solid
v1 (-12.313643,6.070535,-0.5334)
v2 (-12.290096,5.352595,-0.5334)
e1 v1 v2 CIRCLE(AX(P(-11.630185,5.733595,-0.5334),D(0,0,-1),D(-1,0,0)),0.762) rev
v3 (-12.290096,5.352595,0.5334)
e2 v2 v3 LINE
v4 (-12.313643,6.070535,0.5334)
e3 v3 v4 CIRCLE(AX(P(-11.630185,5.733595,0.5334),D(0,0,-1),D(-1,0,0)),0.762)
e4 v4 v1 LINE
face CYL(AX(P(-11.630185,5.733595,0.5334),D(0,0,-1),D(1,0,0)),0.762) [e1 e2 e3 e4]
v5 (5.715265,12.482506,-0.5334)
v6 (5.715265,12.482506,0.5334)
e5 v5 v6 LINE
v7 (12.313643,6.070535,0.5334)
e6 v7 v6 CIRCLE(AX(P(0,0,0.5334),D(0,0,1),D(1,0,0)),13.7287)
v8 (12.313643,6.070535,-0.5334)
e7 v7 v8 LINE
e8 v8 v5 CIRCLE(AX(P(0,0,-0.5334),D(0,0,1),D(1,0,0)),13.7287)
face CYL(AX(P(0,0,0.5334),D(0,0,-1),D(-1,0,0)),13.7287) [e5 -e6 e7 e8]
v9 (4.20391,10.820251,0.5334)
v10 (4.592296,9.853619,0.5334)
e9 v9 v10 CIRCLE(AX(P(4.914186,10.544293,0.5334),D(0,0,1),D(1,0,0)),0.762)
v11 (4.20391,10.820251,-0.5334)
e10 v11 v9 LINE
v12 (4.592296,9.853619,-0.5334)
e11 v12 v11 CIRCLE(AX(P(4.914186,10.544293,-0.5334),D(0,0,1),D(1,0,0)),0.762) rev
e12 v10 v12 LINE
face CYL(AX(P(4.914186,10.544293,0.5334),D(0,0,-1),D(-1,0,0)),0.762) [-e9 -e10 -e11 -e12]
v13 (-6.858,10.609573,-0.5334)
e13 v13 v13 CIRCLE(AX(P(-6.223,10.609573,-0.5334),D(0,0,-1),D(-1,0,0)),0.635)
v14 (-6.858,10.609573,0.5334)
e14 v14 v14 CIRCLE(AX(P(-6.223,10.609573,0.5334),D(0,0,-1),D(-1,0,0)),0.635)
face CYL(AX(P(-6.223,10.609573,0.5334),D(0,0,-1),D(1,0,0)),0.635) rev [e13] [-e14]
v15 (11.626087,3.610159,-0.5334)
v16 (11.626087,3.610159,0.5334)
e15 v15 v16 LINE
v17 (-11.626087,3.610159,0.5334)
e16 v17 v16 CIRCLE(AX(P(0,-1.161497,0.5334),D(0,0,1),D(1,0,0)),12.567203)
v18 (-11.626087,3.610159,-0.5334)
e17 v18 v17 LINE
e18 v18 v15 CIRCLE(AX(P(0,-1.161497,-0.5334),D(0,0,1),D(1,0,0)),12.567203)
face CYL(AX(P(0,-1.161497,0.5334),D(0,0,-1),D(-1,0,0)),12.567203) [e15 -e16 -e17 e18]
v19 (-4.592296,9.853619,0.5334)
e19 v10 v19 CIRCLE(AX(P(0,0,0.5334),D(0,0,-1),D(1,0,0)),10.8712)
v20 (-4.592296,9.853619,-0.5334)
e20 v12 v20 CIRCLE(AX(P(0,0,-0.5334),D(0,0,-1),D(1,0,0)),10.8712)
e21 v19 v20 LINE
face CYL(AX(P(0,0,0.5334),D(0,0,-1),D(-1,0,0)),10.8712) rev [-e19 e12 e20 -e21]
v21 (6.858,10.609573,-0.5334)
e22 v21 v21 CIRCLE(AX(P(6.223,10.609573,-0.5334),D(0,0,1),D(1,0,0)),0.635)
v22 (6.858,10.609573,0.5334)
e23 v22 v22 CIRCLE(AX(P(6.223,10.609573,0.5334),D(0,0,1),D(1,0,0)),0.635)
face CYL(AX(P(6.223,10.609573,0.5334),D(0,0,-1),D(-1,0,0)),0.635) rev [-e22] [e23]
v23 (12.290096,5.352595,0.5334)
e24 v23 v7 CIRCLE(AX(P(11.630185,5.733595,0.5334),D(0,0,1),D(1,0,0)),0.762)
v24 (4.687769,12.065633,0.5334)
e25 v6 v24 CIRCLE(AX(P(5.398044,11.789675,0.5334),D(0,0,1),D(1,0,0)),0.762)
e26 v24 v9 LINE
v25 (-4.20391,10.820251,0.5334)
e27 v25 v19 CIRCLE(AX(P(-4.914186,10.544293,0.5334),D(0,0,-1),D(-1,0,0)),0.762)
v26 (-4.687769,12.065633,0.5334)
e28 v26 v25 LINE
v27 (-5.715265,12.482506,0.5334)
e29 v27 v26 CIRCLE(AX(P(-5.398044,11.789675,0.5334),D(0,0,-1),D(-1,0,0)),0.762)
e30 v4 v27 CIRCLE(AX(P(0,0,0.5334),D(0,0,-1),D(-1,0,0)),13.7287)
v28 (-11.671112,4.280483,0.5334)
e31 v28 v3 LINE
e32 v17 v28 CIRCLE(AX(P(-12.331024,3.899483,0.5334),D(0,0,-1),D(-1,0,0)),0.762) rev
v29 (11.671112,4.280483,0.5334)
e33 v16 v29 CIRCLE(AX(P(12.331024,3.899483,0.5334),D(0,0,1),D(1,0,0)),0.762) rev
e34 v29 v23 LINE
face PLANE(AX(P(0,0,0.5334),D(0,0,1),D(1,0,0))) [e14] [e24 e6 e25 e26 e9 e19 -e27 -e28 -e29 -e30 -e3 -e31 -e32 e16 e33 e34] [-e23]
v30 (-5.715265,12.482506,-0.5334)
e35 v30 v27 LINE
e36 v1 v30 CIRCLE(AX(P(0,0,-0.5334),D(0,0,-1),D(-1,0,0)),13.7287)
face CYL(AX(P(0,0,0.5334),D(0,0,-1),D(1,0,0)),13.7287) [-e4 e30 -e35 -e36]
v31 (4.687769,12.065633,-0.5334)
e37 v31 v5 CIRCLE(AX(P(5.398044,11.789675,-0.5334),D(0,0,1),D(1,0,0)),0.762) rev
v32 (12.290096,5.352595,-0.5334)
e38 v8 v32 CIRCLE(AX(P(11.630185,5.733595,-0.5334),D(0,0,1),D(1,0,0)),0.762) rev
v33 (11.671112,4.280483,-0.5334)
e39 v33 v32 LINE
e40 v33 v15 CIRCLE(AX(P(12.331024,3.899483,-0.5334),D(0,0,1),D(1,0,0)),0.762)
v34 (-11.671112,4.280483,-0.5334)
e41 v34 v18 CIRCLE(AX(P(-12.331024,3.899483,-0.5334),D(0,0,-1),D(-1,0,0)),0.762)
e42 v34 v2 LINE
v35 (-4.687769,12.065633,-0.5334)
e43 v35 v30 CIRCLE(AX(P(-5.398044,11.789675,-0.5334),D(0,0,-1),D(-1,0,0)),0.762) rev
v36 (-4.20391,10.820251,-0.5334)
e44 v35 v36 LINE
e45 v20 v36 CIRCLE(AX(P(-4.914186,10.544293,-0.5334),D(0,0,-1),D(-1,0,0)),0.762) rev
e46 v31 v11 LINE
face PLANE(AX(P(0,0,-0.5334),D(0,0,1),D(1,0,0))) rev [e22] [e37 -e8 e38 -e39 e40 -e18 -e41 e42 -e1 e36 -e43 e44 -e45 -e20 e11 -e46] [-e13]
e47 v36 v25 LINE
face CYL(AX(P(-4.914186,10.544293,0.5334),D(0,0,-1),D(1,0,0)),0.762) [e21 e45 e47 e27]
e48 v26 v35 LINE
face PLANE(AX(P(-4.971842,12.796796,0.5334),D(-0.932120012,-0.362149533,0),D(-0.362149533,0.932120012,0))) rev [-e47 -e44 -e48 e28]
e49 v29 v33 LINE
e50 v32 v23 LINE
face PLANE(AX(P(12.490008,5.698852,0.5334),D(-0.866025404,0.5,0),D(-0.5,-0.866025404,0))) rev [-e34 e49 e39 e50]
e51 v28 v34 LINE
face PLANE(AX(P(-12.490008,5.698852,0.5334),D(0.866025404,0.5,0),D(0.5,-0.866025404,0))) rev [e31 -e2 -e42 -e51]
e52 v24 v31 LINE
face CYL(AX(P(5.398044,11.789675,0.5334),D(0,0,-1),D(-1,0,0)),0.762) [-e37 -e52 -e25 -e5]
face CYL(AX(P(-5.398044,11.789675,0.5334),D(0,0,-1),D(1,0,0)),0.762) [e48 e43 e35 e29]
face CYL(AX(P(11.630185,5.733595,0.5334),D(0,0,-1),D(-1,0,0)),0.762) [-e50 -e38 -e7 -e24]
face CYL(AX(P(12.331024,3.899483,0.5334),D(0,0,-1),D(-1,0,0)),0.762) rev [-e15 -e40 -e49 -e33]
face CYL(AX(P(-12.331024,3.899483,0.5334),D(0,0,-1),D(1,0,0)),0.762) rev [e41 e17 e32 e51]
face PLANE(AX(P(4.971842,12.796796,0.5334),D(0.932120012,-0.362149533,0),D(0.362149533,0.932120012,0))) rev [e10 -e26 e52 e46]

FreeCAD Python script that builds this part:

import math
import FreeCAD as App
import Part
import Sketcher

V = App.Vector
Q = App.Units.Quantity


def edges_at(feature, points):
    """Names of the edges that pass closest to the given points."""
    edges = feature.Shape.Edges
    near = lambda p: min(range(len(edges)), key=lambda i: edges[i].distToShape(Part.Vertex(*p))[0])
    return sorted({f"Edge{near(p) + 1}" for p in points})

doc = App.newDocument("Part")
body = doc.addObject("PartDesign::Body", "Body")

sketch1 = body.newObject("Sketcher::SketchObject", "Sketch")
sketch1.AttachmentSupport = (doc.getObject("XY_Plane"), [""])
sketch1.MapMode = "FlatFace"
sketch1.addGeometry(Part.LineSegment(V(0, -10.8712, 0), V(0, -13.7287, 0)), False)
sketch1.addGeometry(Part.ArcOfCircle(Part.Circle(V(0, -1.161497, 0), V(0, 0, 1), 12.567203), math.radians(-90), math.radians(24.001844)), False)
sketch1.addGeometry(Part.LineSegment(V(11.480547, 3.950415, 0), V(12.490008, 5.698852, 0)), False)
sketch1.addGeometry(Part.ArcOfCircle(Part.Circle(V(0, 0, 0), V(0, 0, 1), 13.7287), math.radians(24.525929), math.radians(68.767735)), False)
sketch1.addGeometry(Part.LineSegment(V(4.971842, 12.796796, 0), V(3.937, 10.133263, 0)), False)
sketch1.addGeometry(Part.ArcOfCircle(Part.Circle(V(0, 0, 0), V(0, 0, 1), 10.8712), math.radians(-90), math.radians(68.767735)), False)
sketch1.addGeometry(Part.Circle(V(6.223, 10.609573, 0), V(0, 0, 1), 0.635), False)
sketch1.addConstraint(Sketcher.Constraint("Coincident", 0, 2, 1, 1))
sketch1.addConstraint(Sketcher.Constraint("Coincident", 1, 2, 2, 1))
sketch1.addConstraint(Sketcher.Constraint("Coincident", 2, 2, 3, 1))
sketch1.addConstraint(Sketcher.Constraint("Coincident", 3, 2, 4, 1))
sketch1.addConstraint(Sketcher.Constraint("Coincident", 4, 2, 5, 2))
sketch1.addConstraint(Sketcher.Constraint("Coincident", 5, 1, 0, 1))
sketch1.addConstraint(Sketcher.Constraint("Vertical", 0))
sketch1.addConstraint(Sketcher.Constraint("Coincident", 3, 3, -1, 1))
sketch1.addConstraint(Sketcher.Constraint("Coincident", 5, 3, -1, 1))
sketch1.addConstraint(Sketcher.Constraint("PointOnObject", 1, 3, -2))
sketch1.addConstraint(Sketcher.Constraint("PointOnObject", 0, 2, -2))
sketch1.addConstraint(Sketcher.Constraint("Diameter", 6, Q("0.05 in")))
sketch1.addConstraint(Sketcher.Constraint("Radius", 5, Q("0.428 in")))
sketch1.addConstraint(Sketcher.Constraint("Radius", 3, Q("0.5405 in")))
sketch1.addConstraint(Sketcher.Constraint("DistanceX", 4, 2, 6, 3, Q("0.09 in")))
sketch1.addConstraint(Sketcher.Constraint("DistanceY", 0, 2, 0, 1, Q("0.1125 in")))
sketch1.addConstraint(Sketcher.Constraint("DistanceX", -1, 1, 6, 3, Q("0.245 in")))
sketch1.addConstraint(Sketcher.Constraint("Radius", 1, 12.567203))
sketch1.addConstraint(Sketcher.Constraint("Distance", 2, 2.018921))
sketch1.addConstraint(Sketcher.Constraint("DistanceY", -1, 1, 2, 2, 5.698852))
sketch1.addConstraint(Sketcher.Constraint("DistanceY", 1, 3, 6, 3, 11.77107))
sketch1.addConstraint(Sketcher.Constraint("DistanceY", 1, 2, 3, 2, 8.846381))
pad1 = body.newObject("PartDesign::Pad", "Pad")
pad1.Profile = sketch1
pad1.Length = Q("0.042 in")
pad1.Midplane = True
doc.recompute()

fillet = body.newObject("PartDesign::Fillet", "Fillet")
fillet.Base = (pad1, edges_at(pad1, [
    (12.49, 5.699, 0),
    (11.481, 3.95, 0),
    (3.937, 10.133, 0),
    (4.972, 12.797, 0),
]))
fillet.Radius = Q("0.03 in")
body2 = doc.addObject("PartDesign::Body", "Body001")
doc.recompute()

body2.BaseFeature = body
doc.recompute()

mirroring = doc.addObject("Part::Mirroring", "Mirroring")
mirroring.Source = body
mirroring.Base = V(0, 0, 0)
mirroring.Normal = V(1, 0, 0)
body3 = doc.addObject("PartDesign::Body", "Body002")
body3.BaseFeature = mirroring
boolean = body2.newObject("PartDesign::Boolean", "Boolean")
boolean.Type = "Fuse"
boolean.addObjects([body3])
doc.recompute()
mirroring.Visibility = False

doc.recompute()
